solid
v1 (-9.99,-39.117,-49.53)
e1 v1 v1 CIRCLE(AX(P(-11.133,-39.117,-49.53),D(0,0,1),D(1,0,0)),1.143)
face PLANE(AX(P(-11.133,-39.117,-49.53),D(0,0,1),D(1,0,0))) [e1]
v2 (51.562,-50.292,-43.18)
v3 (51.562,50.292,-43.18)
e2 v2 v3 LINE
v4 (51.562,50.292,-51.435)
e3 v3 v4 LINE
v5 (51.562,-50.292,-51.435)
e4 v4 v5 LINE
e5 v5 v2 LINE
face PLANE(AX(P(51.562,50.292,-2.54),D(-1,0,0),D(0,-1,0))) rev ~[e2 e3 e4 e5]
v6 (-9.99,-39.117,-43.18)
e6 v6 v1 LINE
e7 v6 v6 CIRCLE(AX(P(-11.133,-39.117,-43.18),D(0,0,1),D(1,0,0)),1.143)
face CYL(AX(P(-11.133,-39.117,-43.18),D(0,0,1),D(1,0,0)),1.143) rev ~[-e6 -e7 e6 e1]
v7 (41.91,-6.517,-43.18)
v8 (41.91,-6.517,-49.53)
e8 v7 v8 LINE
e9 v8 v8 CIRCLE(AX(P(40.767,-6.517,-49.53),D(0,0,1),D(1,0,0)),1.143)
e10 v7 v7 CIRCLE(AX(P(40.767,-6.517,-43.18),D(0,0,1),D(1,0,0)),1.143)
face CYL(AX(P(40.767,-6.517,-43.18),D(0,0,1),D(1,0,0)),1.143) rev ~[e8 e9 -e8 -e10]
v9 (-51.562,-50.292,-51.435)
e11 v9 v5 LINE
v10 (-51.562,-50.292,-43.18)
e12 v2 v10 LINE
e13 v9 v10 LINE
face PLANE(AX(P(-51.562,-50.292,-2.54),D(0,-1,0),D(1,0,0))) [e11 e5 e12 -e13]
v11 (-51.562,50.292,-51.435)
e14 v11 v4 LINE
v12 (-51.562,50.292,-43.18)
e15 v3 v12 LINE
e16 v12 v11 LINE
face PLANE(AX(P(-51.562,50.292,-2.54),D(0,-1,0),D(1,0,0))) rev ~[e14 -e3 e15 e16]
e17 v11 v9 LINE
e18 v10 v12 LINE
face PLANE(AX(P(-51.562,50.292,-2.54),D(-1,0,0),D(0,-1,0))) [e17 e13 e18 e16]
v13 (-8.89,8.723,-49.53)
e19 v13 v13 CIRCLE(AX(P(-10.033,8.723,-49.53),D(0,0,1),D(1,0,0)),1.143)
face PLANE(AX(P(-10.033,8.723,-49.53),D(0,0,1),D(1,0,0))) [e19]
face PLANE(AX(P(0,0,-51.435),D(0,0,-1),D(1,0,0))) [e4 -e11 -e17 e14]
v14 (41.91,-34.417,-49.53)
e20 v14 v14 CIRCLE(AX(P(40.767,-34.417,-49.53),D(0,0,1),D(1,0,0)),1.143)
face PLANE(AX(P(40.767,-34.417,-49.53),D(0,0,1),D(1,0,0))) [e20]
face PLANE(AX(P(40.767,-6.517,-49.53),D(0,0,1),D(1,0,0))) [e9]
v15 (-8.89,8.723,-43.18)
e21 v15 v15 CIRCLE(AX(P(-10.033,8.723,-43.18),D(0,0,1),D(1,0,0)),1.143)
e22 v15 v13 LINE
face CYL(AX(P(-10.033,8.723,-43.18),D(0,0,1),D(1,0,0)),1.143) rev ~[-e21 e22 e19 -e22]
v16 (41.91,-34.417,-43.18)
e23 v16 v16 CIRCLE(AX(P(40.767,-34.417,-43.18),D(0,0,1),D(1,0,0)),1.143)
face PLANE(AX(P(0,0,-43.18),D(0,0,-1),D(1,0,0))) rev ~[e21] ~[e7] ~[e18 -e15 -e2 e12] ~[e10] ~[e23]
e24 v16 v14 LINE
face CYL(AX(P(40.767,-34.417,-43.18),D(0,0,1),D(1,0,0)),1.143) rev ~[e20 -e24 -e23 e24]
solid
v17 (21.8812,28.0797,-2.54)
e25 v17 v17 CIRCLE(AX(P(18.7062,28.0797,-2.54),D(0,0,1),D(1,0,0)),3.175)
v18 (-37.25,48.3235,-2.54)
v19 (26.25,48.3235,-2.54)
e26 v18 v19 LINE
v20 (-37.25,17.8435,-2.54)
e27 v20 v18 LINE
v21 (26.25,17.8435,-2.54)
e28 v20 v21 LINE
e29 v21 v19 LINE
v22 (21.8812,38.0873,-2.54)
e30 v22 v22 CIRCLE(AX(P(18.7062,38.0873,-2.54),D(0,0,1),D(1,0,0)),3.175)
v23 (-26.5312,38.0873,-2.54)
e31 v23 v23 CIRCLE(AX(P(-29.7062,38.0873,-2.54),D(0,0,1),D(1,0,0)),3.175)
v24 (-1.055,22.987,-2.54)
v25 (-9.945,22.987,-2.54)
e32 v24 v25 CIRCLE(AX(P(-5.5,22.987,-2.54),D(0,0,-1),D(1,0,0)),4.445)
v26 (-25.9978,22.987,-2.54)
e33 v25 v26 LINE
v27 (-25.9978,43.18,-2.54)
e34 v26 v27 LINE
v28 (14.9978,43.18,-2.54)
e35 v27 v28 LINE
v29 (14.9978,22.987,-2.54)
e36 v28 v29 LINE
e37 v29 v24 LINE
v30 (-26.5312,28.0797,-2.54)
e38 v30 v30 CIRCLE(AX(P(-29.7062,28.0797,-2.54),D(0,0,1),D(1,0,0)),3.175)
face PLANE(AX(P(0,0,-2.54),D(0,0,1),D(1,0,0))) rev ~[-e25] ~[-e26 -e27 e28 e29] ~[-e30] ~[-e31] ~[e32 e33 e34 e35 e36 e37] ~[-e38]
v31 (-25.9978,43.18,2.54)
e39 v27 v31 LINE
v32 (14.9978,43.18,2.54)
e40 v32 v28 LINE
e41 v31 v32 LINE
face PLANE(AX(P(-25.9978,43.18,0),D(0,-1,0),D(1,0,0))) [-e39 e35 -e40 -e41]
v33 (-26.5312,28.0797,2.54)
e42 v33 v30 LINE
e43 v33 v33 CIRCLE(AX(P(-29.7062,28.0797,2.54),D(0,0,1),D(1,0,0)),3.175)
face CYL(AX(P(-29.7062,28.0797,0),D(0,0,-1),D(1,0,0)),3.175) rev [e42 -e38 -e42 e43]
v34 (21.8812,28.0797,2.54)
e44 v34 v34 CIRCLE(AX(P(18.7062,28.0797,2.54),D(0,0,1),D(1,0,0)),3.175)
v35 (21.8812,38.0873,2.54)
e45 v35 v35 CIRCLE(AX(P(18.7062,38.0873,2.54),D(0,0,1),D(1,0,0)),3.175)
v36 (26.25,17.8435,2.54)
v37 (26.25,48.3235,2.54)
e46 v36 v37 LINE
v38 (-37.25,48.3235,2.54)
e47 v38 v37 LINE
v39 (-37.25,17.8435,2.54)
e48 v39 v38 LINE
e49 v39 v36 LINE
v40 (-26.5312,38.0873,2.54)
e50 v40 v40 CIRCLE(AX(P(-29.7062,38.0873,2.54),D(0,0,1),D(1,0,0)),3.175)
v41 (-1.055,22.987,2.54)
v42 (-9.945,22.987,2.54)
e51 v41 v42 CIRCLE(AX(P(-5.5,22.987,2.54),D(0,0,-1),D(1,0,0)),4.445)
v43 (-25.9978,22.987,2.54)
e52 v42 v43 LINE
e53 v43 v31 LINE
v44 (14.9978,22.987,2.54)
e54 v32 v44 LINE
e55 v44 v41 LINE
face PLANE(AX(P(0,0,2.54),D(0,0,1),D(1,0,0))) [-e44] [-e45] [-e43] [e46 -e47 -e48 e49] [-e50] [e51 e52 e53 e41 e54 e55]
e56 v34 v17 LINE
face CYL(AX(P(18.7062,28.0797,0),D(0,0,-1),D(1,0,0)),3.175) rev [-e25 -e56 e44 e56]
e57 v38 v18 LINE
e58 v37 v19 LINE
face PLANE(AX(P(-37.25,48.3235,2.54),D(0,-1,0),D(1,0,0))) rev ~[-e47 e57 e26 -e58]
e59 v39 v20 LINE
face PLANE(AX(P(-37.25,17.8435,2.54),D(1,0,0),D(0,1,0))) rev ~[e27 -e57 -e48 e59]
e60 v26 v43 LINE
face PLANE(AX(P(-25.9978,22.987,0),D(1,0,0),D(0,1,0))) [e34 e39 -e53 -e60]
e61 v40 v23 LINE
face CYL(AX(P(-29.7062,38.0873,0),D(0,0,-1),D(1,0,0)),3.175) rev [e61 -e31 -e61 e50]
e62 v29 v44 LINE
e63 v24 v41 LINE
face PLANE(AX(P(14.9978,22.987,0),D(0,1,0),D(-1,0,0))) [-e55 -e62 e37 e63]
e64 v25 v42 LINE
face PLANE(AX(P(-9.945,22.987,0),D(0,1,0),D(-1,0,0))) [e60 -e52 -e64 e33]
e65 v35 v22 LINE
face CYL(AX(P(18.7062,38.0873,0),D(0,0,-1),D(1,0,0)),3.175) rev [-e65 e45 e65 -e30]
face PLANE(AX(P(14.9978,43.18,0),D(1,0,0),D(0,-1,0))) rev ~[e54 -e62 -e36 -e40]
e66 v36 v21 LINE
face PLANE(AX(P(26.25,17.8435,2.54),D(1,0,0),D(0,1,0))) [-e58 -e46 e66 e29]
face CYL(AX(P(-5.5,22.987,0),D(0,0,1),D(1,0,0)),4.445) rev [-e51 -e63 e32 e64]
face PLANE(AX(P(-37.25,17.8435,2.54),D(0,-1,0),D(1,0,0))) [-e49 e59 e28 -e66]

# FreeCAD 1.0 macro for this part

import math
import FreeCAD as App
import Part
import Sketcher

V = App.Vector
Q = App.Units.Quantity


def edges_at(feature, points):
    """Names of the edges that pass closest to the given points."""
    edges = feature.Shape.Edges
    near = lambda p: min(range(len(edges)), key=lambda i: edges[i].distToShape(Part.Vertex(*p))[0])
    return sorted({f"Edge{near(p) + 1}" for p in points})

doc = App.newDocument("Part")
body = doc.addObject("PartDesign::Body", "Body")

# Sketch on XY plane
sketch1 = body.newObject("Sketcher::SketchObject", "Sketch")
sketch1.AttachmentSupport = (doc.getObject("XY_Plane"), [""])
sketch1.MapMode = "FlatFace"
sketch1.addGeometry([
    Part.LineSegment(V(57.1, -57.1, 0), V(57.1, 57.1, 0)),  # 0
    Part.LineSegment(V(57.1, 57.1, 0), V(-57.1, 57.1, 0)),  # 1
    Part.LineSegment(V(-57.1, 57.1, 0), V(-57.1, -57.1, 0)),  # 2
    Part.LineSegment(V(-57.1, -57.1, 0), V(57.1, -57.1, 0)),  # 3
    Part.Circle(V(-29.7, 28.1, 0), V(0, 0, 1), 3.2),  # 4
    Part.LineSegment(V(-9.9, 23, 0), V(-26, 23, 0)),  # 5
    Part.LineSegment(V(-26, 23, 0), V(-26, 43.2, 0)),  # 6
    Part.LineSegment(V(-26, 43.2, 0), V(15, 43.2, 0)),  # 7
    Part.LineSegment(V(15, 43.2, 0), V(15, 23, 0)),  # 8
    Part.LineSegment(V(15, 23, 0), V(-1.1, 23, 0)),  # 9
    Part.ArcOfCircle(Part.Circle(V(-5.5, 23, 0), V(0, 0, 1), 4.4), math.radians(180), math.radians(360)),  # 10
    Part.Circle(V(18.7, 28.1, 0), V(0, 0, 1), 3.2),  # 11
    Part.Circle(V(-29.7, 38.1, 0), V(0, 0, 1), 3.2),  # 12
    Part.Circle(V(18.7, 38.1, 0), V(0, 0, 1), 3.2),  # 13
], False)
sketch1.addConstraint([
    Sketcher.Constraint("Coincident", 0, 2, 1, 1),
    Sketcher.Constraint("Coincident", 1, 2, 2, 1),
    Sketcher.Constraint("Coincident", 2, 2, 3, 1),
    Sketcher.Constraint("Coincident", 3, 2, 0, 1),
    Sketcher.Constraint("Coincident", 5, 2, 6, 1),
    Sketcher.Constraint("Coincident", 6, 2, 7, 1),
    Sketcher.Constraint("Coincident", 7, 2, 8, 1),
    Sketcher.Constraint("Coincident", 8, 2, 9, 1),
    Sketcher.Constraint("Coincident", 9, 2, 10, 2),
    Sketcher.Constraint("Coincident", 10, 1, 5, 1),
    Sketcher.Constraint("Vertical", 0),
    Sketcher.Constraint("Horizontal", 1),
    Sketcher.Constraint("Vertical", 2),
    Sketcher.Constraint("Horizontal", 3),
    Sketcher.Constraint("Horizontal", 5),
    Sketcher.Constraint("Vertical", 6),
    Sketcher.Constraint("Horizontal", 7),
    Sketcher.Constraint("Vertical", 8),
    Sketcher.Constraint("Horizontal", 9),
    Sketcher.Constraint("Equal", 4, 11),
    Sketcher.Constraint("Equal", 11, 12),
    Sketcher.Constraint("Equal", 12, 13),
    Sketcher.Constraint("Symmetric", 0, 2, 2, 2, -1, 1),
    Sketcher.Constraint("Horizontal", 4, 3, 11, 3),
    Sketcher.Constraint("Horizontal", 12, 3, 13, 3),
    Sketcher.Constraint("Horizontal", 10, 3, 5, 2),
    Sketcher.Constraint("Horizontal", 5, 2, 8, 2),
    Sketcher.Constraint("Vertical", 4, 3, 12, 3),
    Sketcher.Constraint("Vertical", 11, 3, 13, 3),
    Sketcher.Constraint("Equal", 5, 9),
    Sketcher.Constraint("Equal", 3, 0),
    Sketcher.Constraint("Diameter", 4, Q("0.25 in")),
    Sketcher.Constraint("DistanceX", 1, 2, 1, 1, Q("4.5 in")),
    Sketcher.Constraint("Radius", 10, Q("0.175 in")),
    Sketcher.Constraint("DistanceY", -1, 1, 6, 2, Q("1.7 in")),
    Sketcher.Constraint("DistanceX", 5, 2, 5, 1, Q("0.632 in")),
    Sketcher.Constraint("DistanceY", 6, 1, 6, 2, Q("0.795 in")),
    Sketcher.Constraint("DistanceX", 5, 2, 11, 3, Q("1.76 in")),
    Sketcher.Constraint("DistanceX", 4, 3, 10, 3, Q("0.953 in")),
    Sketcher.Constraint("DistanceY", 4, 3, 12, 3, Q("0.394 in")),
    Sketcher.Constraint("DistanceY", -1, 1, 4, 3, Q("1.1055 in")),
    Sketcher.Constraint("DistanceX", 4, 3, -1, 1, Q("29.7062 mm")),
])
pad1 = body.newObject("PartDesign::Pad", "Pad")
pad1.Profile = sketch1
pad1.Length = Q("0.2 in")
pad1.Midplane = True

# Sketch on XY plane
sketch2 = body.newObject("Sketcher::SketchObject", "Sketch001")
sketch2.AttachmentSupport = (doc.getObject("XY_Plane"), [""])
sketch2.MapMode = "FlatFace"
sketch2.AttachmentOffset = App.Placement(V(0, 0, -0.1 * 25.4), App.Rotation())
sketch2.addGeometry([
    Part.LineSegment(V(-57, -57, 0), V(-57, 57, 0)),  # 0
    Part.LineSegment(V(-57, 57, 0), V(57, 57, 0)),  # 1
    Part.LineSegment(V(57, 57, 0), V(57, -57, 0)),  # 2
    Part.LineSegment(V(57, -57, 0), V(-57, -57, 0)),  # 3
    Part.LineSegment(V(52, 51, 0), V(-52, 51, 0)),  # 4
    Part.LineSegment(V(-52, 51, 0), V(-52, -51, 0)),  # 5
    Part.LineSegment(V(-52, -51, 0), V(52, -51, 0)),  # 6
    Part.LineSegment(V(52, -51, 0), V(52, 51, 0)),  # 7
], False)
sketch2.addConstraint([
    Sketcher.Constraint("Coincident", 0, 2, 1, 1),
    Sketcher.Constraint("Coincident", 1, 2, 2, 1),
    Sketcher.Constraint("Coincident", 2, 2, 3, 1),
    Sketcher.Constraint("Coincident", 3, 2, 0, 1),
    Sketcher.Constraint("Coincident", 4, 2, 5, 1),
    Sketcher.Constraint("Coincident", 5, 2, 6, 1),
    Sketcher.Constraint("Coincident", 6, 2, 7, 1),
    Sketcher.Constraint("Coincident", 7, 2, 4, 1),
    Sketcher.Constraint("Vertical", 0),
    Sketcher.Constraint("Horizontal", 1),
    Sketcher.Constraint("Vertical", 2),
    Sketcher.Constraint("Horizontal", 3),
    Sketcher.Constraint("Horizontal", 4),
    Sketcher.Constraint("Vertical", 5),
    Sketcher.Constraint("Horizontal", 6),
    Sketcher.Constraint("Vertical", 7),
    Sketcher.Constraint("Symmetric", 0, 2, 2, 2, -1, 1),
    Sketcher.Constraint("Symmetric", 4, 2, 6, 2, -1, 1),
    Sketcher.Constraint("Equal", 3, 0),
    Sketcher.Constraint("DistanceY", 5, 2, 5, 1, Q("4 in")),
    Sketcher.Constraint("DistanceX", 1, 1, 1, 2, Q("4.5 in")),
    Sketcher.Constraint("DistanceX", 4, 2, 4, 1, Q("4.1 in")),
])
pad2 = body.newObject("PartDesign::Pad", "Pad001")
pad2.Profile = sketch2
pad2.Length = Q("0.125 in")
pad2.Reversed = True

# Sketch on XY plane
sketch3 = body.newObject("Sketcher::SketchObject", "Sketch002")
sketch3.AttachmentSupport = (doc.getObject("XY_Plane"), [""])
sketch3.MapMode = "FlatFace"
sketch3.AttachmentOffset = App.Placement(V(0, 0, 0.1 * 25.4), App.Rotation())
sketch3.addGeometry([
    Part.Circle(V(-48, -46.7, 0), V(0, 0, 1), 1.7),
    Part.Circle(V(-48, 46.7, 0), V(0, 0, 1), 1.7),
    Part.Circle(V(48, 46.7, 0), V(0, 0, 1), 1.7),
    Part.Circle(V(48, -46.7, 0), V(0, 0, 1), 1.7),
], False)
sketch3.addConstraint([
    Sketcher.Constraint("Equal", 0, 1),
    Sketcher.Constraint("Equal", 1, 2),
    Sketcher.Constraint("Equal", 2, 3),
    Sketcher.Constraint("Symmetric", 0, 3, 2, 3, -1, 1),
    Sketcher.Constraint("Symmetric", 1, 3, 3, 3, -1, 1),
    Sketcher.Constraint("Symmetric", 1, 3, 2, 3, -2),
    Sketcher.Constraint("Diameter", 0, Q("0.13 in")),
    Sketcher.Constraint("DistanceX", 0, 3, -1, 1, Q("1.89 in")),
    Sketcher.Constraint("DistanceY", 0, 3, -1, 1, Q("1.84 in")),
])
pocket1 = body.newObject("PartDesign::Pocket", "Pocket")
pocket1.Profile = sketch3
pocket1.Type = "ThroughAll"
body2 = doc.addObject("PartDesign::Body", "Body001")

# Sketch on XY plane
sketch4 = body2.newObject("Sketcher::SketchObject", "Sketch003")
sketch4.AttachmentSupport = (doc.getObject("XY_Plane001"), [""])
sketch4.MapMode = "FlatFace"
sketch4.AttachmentOffset = App.Placement(V(0, 0, -0.1 * 25.4), App.Rotation())
sketch4.addGeometry([
    Part.LineSegment(V(-52, -50, 0), V(-52, 50, 0)),  # 0
    Part.LineSegment(V(-52, 50, 0), V(52, 50, 0)),  # 1
    Part.LineSegment(V(52, 50, 0), V(52, -50, 0)),  # 2
    Part.LineSegment(V(52, -50, 0), V(-52, -50, 0)),  # 3
    Part.LineSegment(V(46, 45, 0), V(-46, 45, 0)),  # 4
    Part.LineSegment(V(-46, 45, 0), V(-46, -45, 0)),  # 5
    Part.LineSegment(V(-46, -45, 0), V(46, -45, 0)),  # 6
    Part.LineSegment(V(46, -45, 0), V(46, 45, 0)),  # 7
], False)
sketch4.addConstraint([
    Sketcher.Constraint("Coincident", 0, 2, 1, 1),
    Sketcher.Constraint("Coincident", 1, 2, 2, 1),
    Sketcher.Constraint("Coincident", 2, 2, 3, 1),
    Sketcher.Constraint("Coincident", 3, 2, 0, 1),
    Sketcher.Constraint("Coincident", 4, 2, 5, 1),
    Sketcher.Constraint("Coincident", 5, 2, 6, 1),
    Sketcher.Constraint("Coincident", 6, 2, 7, 1),
    Sketcher.Constraint("Coincident", 7, 2, 4, 1),
    Sketcher.Constraint("Vertical", 0),
    Sketcher.Constraint("Horizontal", 1),
    Sketcher.Constraint("Vertical", 2),
    Sketcher.Constraint("Horizontal", 3),
    Sketcher.Constraint("Horizontal", 4),
    Sketcher.Constraint("Vertical", 5),
    Sketcher.Constraint("Horizontal", 6),
    Sketcher.Constraint("Vertical", 7),
    Sketcher.Constraint("Symmetric", 0, 2, 2, 2, -1, 1),
    Sketcher.Constraint("Symmetric", 4, 2, 6, 2, -1, 1),
    Sketcher.Constraint("DistanceX", 1, 1, 1, 2, Q("4.06 in")),
    Sketcher.Constraint("DistanceX", 4, 2, 4, 1, Q("3.66 in")),
    Sketcher.Constraint("DistanceY", 0, 1, 0, 2, Q("3.96 in")),
    Sketcher.Constraint("DistanceY", 5, 2, 5, 1, Q("3.56 in")),
])
pad3 = body2.newObject("PartDesign::Pad", "Pad002")
pad3.Profile = sketch4
pad3.Length = Q("1.925 in")
pad3.Reversed = True

# Sketch on XY plane
sketch5 = body2.newObject("Sketcher::SketchObject", "Sketch004")
sketch5.AttachmentSupport = (doc.getObject("XY_Plane001"), [""])
sketch5.MapMode = "FlatFace"
sketch5.AttachmentOffset = App.Placement(V(0, 0, -2.025 * 25.4), App.Rotation())
sketch5.addGeometry([
    Part.LineSegment(V(-52, -50, 0), V(-52, 50, 0)),
    Part.LineSegment(V(-52, 50, 0), V(52, 50, 0)),
    Part.LineSegment(V(52, 50, 0), V(52, -50, 0)),
    Part.LineSegment(V(52, -50, 0), V(-52, -50, 0)),
], False)
sketch5.addConstraint([
    Sketcher.Constraint("Coincident", 0, 2, 1, 1),
    Sketcher.Constraint("Coincident", 1, 2, 2, 1),
    Sketcher.Constraint("Coincident", 2, 2, 3, 1),
    Sketcher.Constraint("Coincident", 3, 2, 0, 1),
    Sketcher.Constraint("Vertical", 0),
    Sketcher.Constraint("Horizontal", 1),
    Sketcher.Constraint("Vertical", 2),
    Sketcher.Constraint("Horizontal", 3),
    Sketcher.Constraint("Symmetric", 0, 2, 2, 2, -1, 1),
    Sketcher.Constraint("DistanceX", 1, 1, 1, 2, Q("4.06 in")),
    Sketcher.Constraint("DistanceY", 0, 1, 0, 2, Q("3.96 in")),
])
pad4 = body2.newObject("PartDesign::Pad", "Pad003")
pad4.Profile = sketch5
pad4.Length = Q("0.325 in")

# Sketch on XY plane
sketch6 = body2.newObject("Sketcher::SketchObject", "Sketch005")
sketch6.AttachmentSupport = (doc.getObject("XY_Plane001"), [""])
sketch6.MapMode = "FlatFace"
sketch6.AttachmentOffset = App.Placement(V(0, 0, -1.7 * 25.4), App.Rotation())
sketch6.addGeometry([
    Part.Circle(V(-10, 8.7, 0), V(0, 0, 1), 1.1),
    Part.Circle(V(40.8, -6.5, 0), V(0, 0, 1), 1.1),
    Part.Circle(V(40.8, -34.4, 0), V(0, 0, 1), 1.1),
    Part.Circle(V(-11.1, -39.1, 0), V(0, 0, 1), 1.1),
], False)
sketch6.addConstraint([
    Sketcher.Constraint("Equal", 0, 1),
    Sketcher.Constraint("Equal", 1, 2),
    Sketcher.Constraint("Equal", 2, 3),
    Sketcher.Constraint("Vertical", 1, 3, 2, 3),
    Sketcher.Constraint("Diameter", 0, Q("0.09 in")),
    Sketcher.Constraint("DistanceX", 0, 3, 1, 3, Q("2 in")),
    Sketcher.Constraint("DistanceY", 1, 3, 0, 3, Q("0.6 in")),
    Sketcher.Constraint("DistanceX", 0, 3, -1, 1, Q("0.395 in")),
    Sketcher.Constraint("DistanceY", 2, 3, -1, 1, Q("1.355 in")),
    Sketcher.Constraint("DistanceY", -1, 1, 0, 3, Q("8.723 mm")),
    Sketcher.Constraint("DistanceX", 3, 3, -1, 1, Q("11.133 mm")),
    Sketcher.Constraint("DistanceY", 3, 3, -1, 1, Q("39.117 mm")),
])
pocket2 = body2.newObject("PartDesign::Pocket", "Pocket001")
pocket2.Profile = sketch6
pocket2.Length = Q("0.25 in")
doc.recompute()

fillet = body2.newObject("PartDesign::Fillet", "Fillet")
fillet.Base = (pocket2, edges_at(pocket2, [
    (-46.482, 45.212, -22.86),
    (46.482, 45.212, -22.86),
    (46.482, -45.212, -22.86),
    (-46.482, -45.212, -22.86),
]))
fillet.Radius = Q("0.25 in")

# Sketch on XY plane
sketch7 = body2.newObject("Sketcher::SketchObject", "Sketch006")
sketch7.AttachmentSupport = (doc.getObject("XY_Plane001"), [""])
sketch7.MapMode = "FlatFace"
sketch7.AttachmentOffset = App.Placement(V(0, 0, -0.1 * 25.4), App.Rotation())
sketch7.addGeometry([
    Part.Circle(V(-48, 46.7, 0), V(0, 0, 1), 1.1),
    Part.Circle(V(48, 46.7, 0), V(0, 0, 1), 1.1),
    Part.Circle(V(48, -46.7, 0), V(0, 0, 1), 1.1),
    Part.Circle(V(-48, -46.7, 0), V(0, 0, 1), 1.1),
], False)
sketch7.addConstraint([
    Sketcher.Constraint("Equal", 0, 1),
    Sketcher.Constraint("Equal", 1, 2),
    Sketcher.Constraint("Equal", 2, 3),
    Sketcher.Constraint("Symmetric", 0, 3, 2, 3, -1, 1),
    Sketcher.Constraint("Symmetric", 1, 3, 3, 3, -1, 1),
    Sketcher.Constraint("Symmetric", 0, 3, 1, 3, -2),
    Sketcher.Constraint("Diameter", 0, Q("0.09 in")),
    Sketcher.Constraint("DistanceX", 0, 3, -1, 1, Q("1.89 in")),
    Sketcher.Constraint("DistanceY", -1, 1, 0, 3, Q("1.84 in")),
])
pocket3 = body2.newObject("PartDesign::Pocket", "Pocket002")
pocket3.Profile = sketch7
pocket3.Length = Q("0.5 in")
body3 = doc.addObject("PartDesign::Body", "Body002")

# Sketch on XY plane
sketch8 = body3.newObject("Sketcher::SketchObject", "Sketch007")
sketch8.AttachmentSupport = (doc.getObject("XY_Plane002"), [""])
sketch8.MapMode = "FlatFace"
sketch8.AttachmentOffset = App.Placement(V(0, 0, 0.1 * 25.4), App.Rotation())
sketch8.addGeometry([
    Part.LineSegment(V(-57, 57, 0), V(-57, -57, 0)),  # 0
    Part.LineSegment(V(-57, -57, 0), V(57, -57, 0)),  # 1
    Part.LineSegment(V(57, -57, 0), V(57, 57, 0)),  # 2
    Part.LineSegment(V(57, 57, 0), V(-57, 57, 0)),  # 3
    Part.LineSegment(V(26, 18, 0), V(-37, 18, 0)),  # 4
    Part.LineSegment(V(-37, 18, 0), V(-37, 48, 0)),  # 5
    Part.LineSegment(V(-37, 48, 0), V(26, 48, 0)),  # 6
    Part.LineSegment(V(26, 48, 0), V(26, 18, 0)),  # 7
], False)
sketch8.addConstraint([
    Sketcher.Constraint("Coincident", 0, 2, 1, 1),
    Sketcher.Constraint("Coincident", 1, 2, 2, 1),
    Sketcher.Constraint("Coincident", 2, 2, 3, 1),
    Sketcher.Constraint("Coincident", 3, 2, 0, 1),
    Sketcher.Constraint("Coincident", 4, 2, 5, 1),
    Sketcher.Constraint("Coincident", 5, 2, 6, 1),
    Sketcher.Constraint("Coincident", 6, 2, 7, 1),
    Sketcher.Constraint("Coincident", 7, 2, 4, 1),
    Sketcher.Constraint("Vertical", 0),
    Sketcher.Constraint("Horizontal", 1),
    Sketcher.Constraint("Vertical", 2),
    Sketcher.Constraint("Horizontal", 3),
    Sketcher.Constraint("Horizontal", 4),
    Sketcher.Constraint("Vertical", 5),
    Sketcher.Constraint("Horizontal", 6),
    Sketcher.Constraint("Vertical", 7),
    Sketcher.Constraint("Symmetric", 0, 2, 2, 2, -1, 1),
    Sketcher.Constraint("Equal", 3, 0),
    Sketcher.Constraint("DistanceX", 1, 1, 1, 2, Q("4.5 in")),
    Sketcher.Constraint("DistanceX", 4, 2, 4, 1, Q("2.5 in")),
    Sketcher.Constraint("DistanceY", 5, 1, 5, 2, Q("1.2 in")),
    Sketcher.Constraint("DistanceY", -1, 1, 4, 2, Q("0.7025 in")),
    Sketcher.Constraint("DistanceX", 4, 2, -1, 1, Q("37.25 mm")),
])
pad5 = body3.newObject("PartDesign::Pad", "Pad004")
pad5.Profile = sketch8
pad5.Length = Q("1.8 in")
pad5.Reversed = True
doc.recompute()

body4 = doc.addObject("PartDesign::Body", "Body003")
body4.BaseFeature = body3
boolean = body.newObject("PartDesign::Boolean", "Boolean")
boolean.Type = "Cut"
boolean.addObjects([body4])
doc.recompute()

boolean2 = body2.newObject("PartDesign::Boolean", "Boolean001")
boolean2.Type = "Cut"
boolean2.addObjects([body3])

# Sketch on XY plane
sketch9 = body2.newObject("Sketcher::SketchObject", "Sketch008")
sketch9.AttachmentSupport = (doc.getObject("XY_Plane001"), [""])
sketch9.MapMode = "FlatFace"
sketch9.AttachmentOffset = App.Placement(V(0, 0, -1.7 * 25.4), App.Rotation())
sketch9.addGeometry([
    Part.LineSegment(V(-37.2, 48.3, 0), V(-37.2, 45.2, 0)),
    Part.LineSegment(V(-37.2, 45.2, 0), V(26.2, 45.2, 0)),
    Part.LineSegment(V(26.2, 45.2, 0), V(26.2, 48.3, 0)),
    Part.LineSegment(V(26.2, 48.3, 0), V(-37.2, 48.3, 0)),
], False)
sketch9.addConstraint([
    Sketcher.Constraint("Coincident", 0, 2, 1, 1),
    Sketcher.Constraint("Coincident", 1, 2, 2, 1),
    Sketcher.Constraint("Coincident", 2, 2, 3, 1),
    Sketcher.Constraint("Coincident", 3, 2, 0, 1),
    Sketcher.Constraint("Vertical", 0),
    Sketcher.Constraint("Horizontal", 1),
    Sketcher.Constraint("Vertical", 2),
    Sketcher.Constraint("Horizontal", 3),
    Sketcher.Constraint("DistanceX", 1, 1, 1, 2, Q("2.5 in")),
    Sketcher.Constraint("DistanceY", -1, 1, 0, 2, Q("1.78 in")),
    Sketcher.Constraint("DistanceY", 0, 2, 0, 1, Q("0.1225 in")),
    Sketcher.Constraint("DistanceX", 0, 2, -1, 1, Q("37.25 mm")),
])
pocket4 = body2.newObject("PartDesign::Pocket", "Pocket003")
pocket4.Profile = sketch9
pocket4.Type = "ThroughAll"
pocket4.Reversed = True

doc.recompute()
